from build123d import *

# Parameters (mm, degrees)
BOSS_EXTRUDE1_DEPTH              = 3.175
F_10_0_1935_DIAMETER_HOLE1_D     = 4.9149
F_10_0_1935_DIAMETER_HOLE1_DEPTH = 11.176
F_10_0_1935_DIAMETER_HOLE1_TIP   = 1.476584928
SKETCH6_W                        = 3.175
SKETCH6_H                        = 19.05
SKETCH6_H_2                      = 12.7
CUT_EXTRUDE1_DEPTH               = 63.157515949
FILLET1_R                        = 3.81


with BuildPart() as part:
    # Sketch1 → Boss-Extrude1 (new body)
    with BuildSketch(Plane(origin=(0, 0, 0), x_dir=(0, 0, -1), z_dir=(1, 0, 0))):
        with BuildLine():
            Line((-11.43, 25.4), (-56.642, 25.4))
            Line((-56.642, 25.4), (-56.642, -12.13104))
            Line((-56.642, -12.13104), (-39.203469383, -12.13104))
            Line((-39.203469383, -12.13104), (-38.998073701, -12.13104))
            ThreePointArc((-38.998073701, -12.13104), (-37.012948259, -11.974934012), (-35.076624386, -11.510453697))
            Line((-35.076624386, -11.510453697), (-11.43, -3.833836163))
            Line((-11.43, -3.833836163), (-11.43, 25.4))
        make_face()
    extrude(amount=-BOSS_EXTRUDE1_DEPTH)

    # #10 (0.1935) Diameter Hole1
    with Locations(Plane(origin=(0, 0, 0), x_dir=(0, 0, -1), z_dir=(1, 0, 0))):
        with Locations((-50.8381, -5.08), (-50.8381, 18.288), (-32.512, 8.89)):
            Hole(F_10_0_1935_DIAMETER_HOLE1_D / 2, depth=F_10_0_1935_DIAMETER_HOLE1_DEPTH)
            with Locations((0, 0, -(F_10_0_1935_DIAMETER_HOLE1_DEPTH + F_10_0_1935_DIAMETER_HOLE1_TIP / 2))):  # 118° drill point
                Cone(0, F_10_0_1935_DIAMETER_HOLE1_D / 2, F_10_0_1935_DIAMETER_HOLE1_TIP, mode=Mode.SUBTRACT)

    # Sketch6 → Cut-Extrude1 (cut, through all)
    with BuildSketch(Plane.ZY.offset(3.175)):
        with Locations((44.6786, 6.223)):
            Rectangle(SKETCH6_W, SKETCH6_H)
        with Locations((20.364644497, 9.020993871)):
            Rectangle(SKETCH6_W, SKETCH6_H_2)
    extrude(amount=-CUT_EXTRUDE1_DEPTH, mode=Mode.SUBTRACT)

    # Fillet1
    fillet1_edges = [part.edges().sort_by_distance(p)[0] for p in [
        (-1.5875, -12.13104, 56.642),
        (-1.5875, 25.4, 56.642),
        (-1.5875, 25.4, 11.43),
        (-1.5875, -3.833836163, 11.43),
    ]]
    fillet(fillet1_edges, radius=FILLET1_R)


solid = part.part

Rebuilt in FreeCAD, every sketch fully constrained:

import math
import FreeCAD as App
import Part
import Sketcher
from FreeCAD import Vector
Q = App.Units.Quantity


def edges_at(feature, points):
    """Names of the edges that pass closest to the given points."""
    edges = feature.Shape.Edges
    near = lambda p: min(range(len(edges)), key=lambda i: edges[i].distToShape(Part.Vertex(*p))[0])
    return sorted({f"Edge{near(p) + 1}" for p in points})


def add_polygon(sketch, points):
    """Adds a closed chain of lines whose ends are joined by coincident constraints."""
    first, n = sketch.GeometryCount, len(points)
    for a, b in zip(points, points[1:] + points[:1]):
        sketch.addGeometry(Part.LineSegment(App.Vector(*a, 0), App.Vector(*b, 0)), False)
    for i in range(n):
        sketch.addConstraint(Sketcher.Constraint("Coincident", first + i, 2, first + (i + 1) % n, 1))

doc = App.newDocument("Part")
body = doc.addObject("PartDesign::Body", "Body")

sketch1 = body.newObject("Sketcher::SketchObject", "Sketch")
sketch1.AttachmentSupport = (doc.getObject("YZ_Plane"), [""])
sketch1.MapMode = "FlatFace"
sketch1.addGeometry(Part.LineSegment(Vector(25.4, 11.4, 0), Vector(25.4, 56.6, 0)), False)
sketch1.addGeometry(Part.LineSegment(Vector(25.4, 56.6, 0), Vector(-12.1, 56.6, 0)), False)
sketch1.addGeometry(Part.LineSegment(Vector(-12.1, 56.6, 0), Vector(-12.1, 39, 0)), False)
sketch1.addGeometry(Part.ArcOfCircle(Part.Circle(Vector(0.6, 39, 0), Vector(0, 0, 1), 12.7), math.radians(180), math.radians(197.99)), False)
sketch1.addGeometry(Part.LineSegment(Vector(-11.5, 35.1, 0), Vector(-3.8, 11.4, 0)), False)
sketch1.addGeometry(Part.LineSegment(Vector(-3.8, 11.4, 0), Vector(25.4, 11.4, 0)), False)
sketch1.addConstraint(Sketcher.Constraint("Coincident", 0, 2, 1, 1))
sketch1.addConstraint(Sketcher.Constraint("Coincident", 1, 2, 2, 1))
sketch1.addConstraint(Sketcher.Constraint("Tangent", 2, 2, 3, 1))
sketch1.addConstraint(Sketcher.Constraint("Tangent", 3, 2, 4, 1))
sketch1.addConstraint(Sketcher.Constraint("Coincident", 4, 2, 5, 1))
sketch1.addConstraint(Sketcher.Constraint("Coincident", 5, 2, 0, 1))
sketch1.addConstraint(Sketcher.Constraint("Vertical", 0))
sketch1.addConstraint(Sketcher.Constraint("Horizontal", 1))
sketch1.addConstraint(Sketcher.Constraint("Vertical", 2))
sketch1.addConstraint(Sketcher.Constraint("Horizontal", 5))
sketch1.addConstraint(Sketcher.Constraint("Radius", 3, Q("0.5 in")))
sketch1.addConstraint(Sketcher.Constraint("DistanceX", -1, 1, 0, 2, Q("1 in")))
sketch1.addConstraint(Sketcher.Constraint("DistanceY", 0, 1, 0, 2, Q("1.78 in")))
sketch1.addConstraint(Sketcher.Constraint("DistanceY", -1, 1, 0, 2, Q("2.23 in")))
sketch1.addConstraint(Sketcher.Constraint("DistanceX", 1, 2, 1, 1, Q("1.4776 in")))
sketch1.addConstraint(Sketcher.Constraint("DistanceX", 5, 1, 5, 2, Q("29.233836 mm")))
sketch1.addConstraint(Sketcher.Constraint("DistanceY", 2, 2, 2, 1, Q("17.643926 mm")))
pad1 = body.newObject("PartDesign::Pad", "Pad")
pad1.Profile = sketch1
pad1.Length = Q("0.125 in")
pad1.Reversed = True

sketch2 = body.newObject("Sketcher::SketchObject", "Sketch001")
sketch2.AttachmentSupport = (doc.getObject("YZ_Plane"), [""])
sketch2.MapMode = "FlatFace"
sketch2.addGeometry(Part.Circle(Vector(-5.1, 50.8, 0), Vector(0, 0, 1), 2.5), False)
sketch2.addGeometry(Part.Circle(Vector(18.3, 50.8, 0), Vector(0, 0, 1), 2.5), False)
sketch2.addGeometry(Part.Circle(Vector(8.9, 32.5, 0), Vector(0, 0, 1), 2.5), False)
sketch2.addConstraint(Sketcher.Constraint("Equal", 0, 1))
sketch2.addConstraint(Sketcher.Constraint("Equal", 1, 2))
sketch2.addConstraint(Sketcher.Constraint("Horizontal", 0, 3, 1, 3))
sketch2.addConstraint(Sketcher.Constraint("Diameter", 0, Q("0.1935 in")))
sketch2.addConstraint(Sketcher.Constraint("DistanceX", 0, 3, -1, 1, Q("0.2 in")))
sketch2.addConstraint(Sketcher.Constraint("DistanceX", -1, 1, 1, 3, Q("0.72 in")))
sketch2.addConstraint(Sketcher.Constraint("DistanceX", -1, 1, 2, 3, Q("0.35 in")))
sketch2.addConstraint(Sketcher.Constraint("DistanceY", -1, 1, 2, 3, Q("1.28 in")))
sketch2.addConstraint(Sketcher.Constraint("DistanceY", -1, 1, 0, 3, Q("2.0015 in")))
doc.recompute()
hole = body.newObject("PartDesign::Hole", "Hole")
hole.Profile = sketch2
hole.ThreadType = "None"
hole.Diameter = Q("0.1935 in")
hole.DepthType = "Dimension"
hole.Depth = Q("0.44 in")
hole.DrillPoint = "Angled"
hole.DrillPointAngle = 118

sketch3 = body.newObject("Sketcher::SketchObject", "Sketch002")
sketch3.AttachmentSupport = (doc.getObject("YZ_Plane"), [""])
sketch3.MapMode = "FlatFace"
sketch3.AttachmentOffset = App.Placement(Vector(0, 0, -0.125 * 25.4), App.Rotation())
add_polygon(sketch3, [(15.7, 43.1), (-3.3, 43.1), (-3.3, 46.3), (15.7, 46.3)])
add_polygon(sketch3, [(15.4, 18.8), (2.7, 18.8), (2.7, 22), (15.4, 22)])
sketch3.addConstraint(Sketcher.Constraint("Horizontal", 0))
sketch3.addConstraint(Sketcher.Constraint("Vertical", 1))
sketch3.addConstraint(Sketcher.Constraint("Horizontal", 2))
sketch3.addConstraint(Sketcher.Constraint("Vertical", 3))
sketch3.addConstraint(Sketcher.Constraint("Horizontal", 4))
sketch3.addConstraint(Sketcher.Constraint("Vertical", 5))
sketch3.addConstraint(Sketcher.Constraint("Horizontal", 6))
sketch3.addConstraint(Sketcher.Constraint("Vertical", 7))
sketch3.addConstraint(Sketcher.Constraint("Equal", 3, 5))
sketch3.addConstraint(Sketcher.Constraint("DistanceX", 4, 2, 4, 1, Q("0.5 in")))
sketch3.addConstraint(Sketcher.Constraint("DistanceX", 0, 2, 0, 1, Q("0.75 in")))
sketch3.addConstraint(Sketcher.Constraint("DistanceY", 1, 1, 1, 2, Q("0.125 in")))
sketch3.addConstraint(Sketcher.Constraint("DistanceX", 0, 2, -1, 1, Q("0.13 in")))
sketch3.addConstraint(Sketcher.Constraint("DistanceY", -1, 1, 0, 2, Q("1.6965 in")))
sketch3.addConstraint(Sketcher.Constraint("DistanceX", -1, 1, 4, 2, Q("2.670994 mm")))
sketch3.addConstraint(Sketcher.Constraint("DistanceY", -1, 1, 4, 2, Q("18.777144 mm")))
pocket1 = body.newObject("PartDesign::Pocket", "Pocket")
pocket1.Profile = sketch3
pocket1.Type = "ThroughAll"
pocket1.Reversed = True
doc.recompute()

fillet = body.newObject("PartDesign::Fillet", "Fillet")
fillet.Base = (pocket1, edges_at(pocket1, [
    (-1.587, -12.131, 56.642),
    (-1.587, 25.4, 56.642),
    (-1.587, 25.4, 11.43),
    (-1.587, -3.834, 11.43),
]))
fillet.Radius = Q("0.15 in")

doc.recompute()
